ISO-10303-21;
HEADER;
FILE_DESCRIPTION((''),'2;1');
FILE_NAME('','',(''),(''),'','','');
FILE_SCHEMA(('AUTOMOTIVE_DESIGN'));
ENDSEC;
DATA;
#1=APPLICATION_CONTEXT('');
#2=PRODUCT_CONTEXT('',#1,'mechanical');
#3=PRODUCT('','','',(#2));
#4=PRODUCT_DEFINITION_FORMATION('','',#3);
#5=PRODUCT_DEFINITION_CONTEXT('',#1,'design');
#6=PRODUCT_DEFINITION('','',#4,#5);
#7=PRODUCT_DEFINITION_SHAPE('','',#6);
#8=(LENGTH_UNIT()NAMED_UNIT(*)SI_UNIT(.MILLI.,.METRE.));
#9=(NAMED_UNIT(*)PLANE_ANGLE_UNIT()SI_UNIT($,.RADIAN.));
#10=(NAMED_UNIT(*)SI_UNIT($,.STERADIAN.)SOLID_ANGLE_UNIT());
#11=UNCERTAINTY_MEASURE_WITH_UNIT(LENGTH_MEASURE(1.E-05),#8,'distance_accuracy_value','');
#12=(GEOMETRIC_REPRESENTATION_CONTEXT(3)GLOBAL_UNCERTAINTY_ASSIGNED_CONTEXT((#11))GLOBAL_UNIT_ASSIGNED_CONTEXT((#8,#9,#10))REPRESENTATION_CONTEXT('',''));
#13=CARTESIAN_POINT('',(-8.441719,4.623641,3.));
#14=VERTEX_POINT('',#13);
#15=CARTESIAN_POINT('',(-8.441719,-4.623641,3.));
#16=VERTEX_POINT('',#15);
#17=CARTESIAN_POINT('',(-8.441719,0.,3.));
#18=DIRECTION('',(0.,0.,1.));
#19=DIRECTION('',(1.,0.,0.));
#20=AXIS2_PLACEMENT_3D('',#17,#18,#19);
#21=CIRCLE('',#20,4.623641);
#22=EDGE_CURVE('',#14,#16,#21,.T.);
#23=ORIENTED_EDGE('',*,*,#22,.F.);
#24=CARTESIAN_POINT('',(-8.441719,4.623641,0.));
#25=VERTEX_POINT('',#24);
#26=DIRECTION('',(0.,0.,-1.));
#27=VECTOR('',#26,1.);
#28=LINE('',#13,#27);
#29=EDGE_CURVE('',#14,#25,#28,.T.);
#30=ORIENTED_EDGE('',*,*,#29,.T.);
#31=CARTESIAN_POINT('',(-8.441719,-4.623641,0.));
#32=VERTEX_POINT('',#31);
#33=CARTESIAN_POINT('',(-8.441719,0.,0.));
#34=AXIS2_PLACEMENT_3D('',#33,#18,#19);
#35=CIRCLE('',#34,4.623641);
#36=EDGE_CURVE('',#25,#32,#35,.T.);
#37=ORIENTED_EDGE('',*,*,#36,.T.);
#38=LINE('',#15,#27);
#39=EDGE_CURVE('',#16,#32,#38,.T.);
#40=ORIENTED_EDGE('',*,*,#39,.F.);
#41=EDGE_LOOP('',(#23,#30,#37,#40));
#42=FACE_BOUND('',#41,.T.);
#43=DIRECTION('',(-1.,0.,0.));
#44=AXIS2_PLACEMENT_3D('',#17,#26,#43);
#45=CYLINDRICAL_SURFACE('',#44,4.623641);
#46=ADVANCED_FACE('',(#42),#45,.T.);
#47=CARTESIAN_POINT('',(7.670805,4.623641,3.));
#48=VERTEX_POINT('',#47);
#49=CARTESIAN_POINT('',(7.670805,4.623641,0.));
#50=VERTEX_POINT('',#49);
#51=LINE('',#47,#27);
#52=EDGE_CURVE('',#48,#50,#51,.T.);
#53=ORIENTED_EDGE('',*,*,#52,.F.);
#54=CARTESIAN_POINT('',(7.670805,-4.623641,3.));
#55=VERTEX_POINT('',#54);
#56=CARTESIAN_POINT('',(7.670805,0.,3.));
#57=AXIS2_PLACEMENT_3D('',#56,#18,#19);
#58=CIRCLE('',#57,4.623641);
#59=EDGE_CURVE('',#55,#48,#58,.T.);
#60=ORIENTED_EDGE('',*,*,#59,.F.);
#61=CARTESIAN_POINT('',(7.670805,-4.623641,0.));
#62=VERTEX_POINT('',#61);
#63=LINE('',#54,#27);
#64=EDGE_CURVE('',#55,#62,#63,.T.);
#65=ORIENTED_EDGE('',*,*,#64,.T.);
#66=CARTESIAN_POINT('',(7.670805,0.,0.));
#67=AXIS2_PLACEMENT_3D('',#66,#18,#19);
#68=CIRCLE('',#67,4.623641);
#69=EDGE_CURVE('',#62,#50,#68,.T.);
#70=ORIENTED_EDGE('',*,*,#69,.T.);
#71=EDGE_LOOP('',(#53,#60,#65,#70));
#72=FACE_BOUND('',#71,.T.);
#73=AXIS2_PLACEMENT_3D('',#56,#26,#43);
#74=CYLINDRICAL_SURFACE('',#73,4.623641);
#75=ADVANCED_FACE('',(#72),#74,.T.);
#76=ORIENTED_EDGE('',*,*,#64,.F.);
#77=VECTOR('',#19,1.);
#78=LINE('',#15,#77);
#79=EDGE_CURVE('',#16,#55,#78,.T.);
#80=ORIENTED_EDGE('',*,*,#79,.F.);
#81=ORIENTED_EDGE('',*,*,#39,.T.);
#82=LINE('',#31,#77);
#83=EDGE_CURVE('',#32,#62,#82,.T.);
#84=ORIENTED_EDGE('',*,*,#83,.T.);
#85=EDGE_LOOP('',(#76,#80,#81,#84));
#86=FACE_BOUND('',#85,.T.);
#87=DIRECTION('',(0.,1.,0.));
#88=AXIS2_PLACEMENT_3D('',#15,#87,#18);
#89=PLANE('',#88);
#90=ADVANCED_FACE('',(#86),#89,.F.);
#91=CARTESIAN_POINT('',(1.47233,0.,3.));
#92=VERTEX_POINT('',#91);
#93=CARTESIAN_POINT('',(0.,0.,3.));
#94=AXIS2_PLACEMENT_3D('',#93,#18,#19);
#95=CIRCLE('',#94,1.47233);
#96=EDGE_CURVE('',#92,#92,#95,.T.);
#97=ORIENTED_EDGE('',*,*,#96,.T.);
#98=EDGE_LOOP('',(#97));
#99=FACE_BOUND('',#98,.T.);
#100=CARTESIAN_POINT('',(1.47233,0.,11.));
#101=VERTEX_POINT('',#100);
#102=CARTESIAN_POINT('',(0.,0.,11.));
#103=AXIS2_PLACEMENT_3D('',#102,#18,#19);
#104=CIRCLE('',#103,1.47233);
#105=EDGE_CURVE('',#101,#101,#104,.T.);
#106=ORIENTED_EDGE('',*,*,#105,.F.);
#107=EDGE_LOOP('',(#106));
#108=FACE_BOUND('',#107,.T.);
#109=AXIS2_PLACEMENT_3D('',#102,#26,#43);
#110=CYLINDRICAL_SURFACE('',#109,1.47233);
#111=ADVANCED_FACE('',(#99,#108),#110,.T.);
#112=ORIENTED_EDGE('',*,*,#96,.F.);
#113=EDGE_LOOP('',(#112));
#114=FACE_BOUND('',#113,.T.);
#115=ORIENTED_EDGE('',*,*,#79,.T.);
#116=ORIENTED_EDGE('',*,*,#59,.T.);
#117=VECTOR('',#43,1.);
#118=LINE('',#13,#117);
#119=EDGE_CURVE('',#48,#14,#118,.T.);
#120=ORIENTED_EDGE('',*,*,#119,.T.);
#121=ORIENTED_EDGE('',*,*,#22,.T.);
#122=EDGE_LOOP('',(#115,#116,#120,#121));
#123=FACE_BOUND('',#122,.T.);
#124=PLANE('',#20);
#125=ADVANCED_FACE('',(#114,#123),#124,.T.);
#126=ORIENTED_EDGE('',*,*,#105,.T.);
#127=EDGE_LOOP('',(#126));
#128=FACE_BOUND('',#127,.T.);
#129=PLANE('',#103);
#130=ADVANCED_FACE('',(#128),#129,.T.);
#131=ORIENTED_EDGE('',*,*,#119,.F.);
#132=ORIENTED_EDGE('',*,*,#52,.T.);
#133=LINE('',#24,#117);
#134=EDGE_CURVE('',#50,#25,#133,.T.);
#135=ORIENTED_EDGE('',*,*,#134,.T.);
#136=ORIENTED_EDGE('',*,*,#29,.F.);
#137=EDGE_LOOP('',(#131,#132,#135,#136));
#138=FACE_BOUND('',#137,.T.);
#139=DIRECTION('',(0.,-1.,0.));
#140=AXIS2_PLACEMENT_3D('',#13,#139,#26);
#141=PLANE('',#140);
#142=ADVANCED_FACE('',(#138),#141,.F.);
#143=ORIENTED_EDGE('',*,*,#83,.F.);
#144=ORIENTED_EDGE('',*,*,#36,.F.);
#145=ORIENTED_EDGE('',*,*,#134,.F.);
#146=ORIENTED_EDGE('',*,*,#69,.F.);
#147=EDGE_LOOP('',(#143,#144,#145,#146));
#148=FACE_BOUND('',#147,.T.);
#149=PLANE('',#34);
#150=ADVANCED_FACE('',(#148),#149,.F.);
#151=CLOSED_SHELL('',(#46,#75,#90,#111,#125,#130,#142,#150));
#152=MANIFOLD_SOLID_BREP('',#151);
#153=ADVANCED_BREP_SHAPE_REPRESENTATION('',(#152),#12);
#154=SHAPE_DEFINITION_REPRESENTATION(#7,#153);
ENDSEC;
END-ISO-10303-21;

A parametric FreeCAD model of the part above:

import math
import FreeCAD as App
import Part
import Sketcher

V = App.Vector
Q = App.Units.Quantity

doc = App.newDocument("Part")
params = doc.addObject("Spreadsheet::Sheet", "Params")
for row, (alias, value) in enumerate([
    ("pad1_length", "3 mm"),
    ("pad2_length", "8 mm"),
], start=1):
    params.set(f"A{row}", alias)
    params.set(f"B{row}", "=" + value)
    params.setAlias(f"B{row}", alias)

body = doc.addObject("PartDesign::Body", "Body")

# Sketch on XY plane
sketch1 = body.newObject("Sketcher::SketchObject", "Sketch")
sketch1.AttachmentSupport = (doc.getObject("XY_Plane"), [""])
sketch1.MapMode = "FlatFace"
sketch1.addGeometry(Part.LineSegment(V(7.7, 4.6, 0), V(-8.4, 4.6, 0)), False)
sketch1.addGeometry(Part.ArcOfCircle(Part.Circle(V(-8.4, 0, 0), V(0, 0, 1), 4.6), math.radians(90), math.radians(270)), False)
sketch1.addGeometry(Part.LineSegment(V(-8.4, -4.6, 0), V(7.7, -4.6, 0)), False)
sketch1.addGeometry(Part.ArcOfCircle(Part.Circle(V(7.7, 0, 0), V(0, 0, 1), 4.6), math.radians(-90), math.radians(90)), False)
sketch1.addConstraint(Sketcher.Constraint("Tangent", 0, 2, 1, 1))
sketch1.addConstraint(Sketcher.Constraint("Tangent", 1, 2, 2, 1))
sketch1.addConstraint(Sketcher.Constraint("Tangent", 2, 2, 3, 1))
sketch1.addConstraint(Sketcher.Constraint("Tangent", 3, 2, 0, 1))
sketch1.addConstraint(Sketcher.Constraint("Horizontal", 0))
sketch1.addConstraint(Sketcher.Constraint("Horizontal", 2))
sketch1.addConstraint(Sketcher.Constraint("PointOnObject", 1, 3, -1))
sketch1.addConstraint(Sketcher.Constraint("Radius", 1, Q("4.623641 mm")))
sketch1.addConstraint(Sketcher.Constraint("DistanceX", 0, 2, 0, 1, Q("16.112523 mm")))
sketch1.addConstraint(Sketcher.Constraint("DistanceX", 1, 3, -1, 1, Q("8.441719 mm")))
pad1 = body.newObject("PartDesign::Pad", "Pad")
pad1.Profile = sketch1
pad1.setExpression("Length", "Params.pad1_length")

# Sketch on XY plane
sketch2 = body.newObject("Sketcher::SketchObject", "Sketch001")
sketch2.AttachmentSupport = (doc.getObject("XY_Plane"), [""])
sketch2.MapMode = "FlatFace"
sketch2.AttachmentOffset = App.Placement(V(0, 0, 3), App.Rotation())
sketch2.addGeometry(Part.Circle(V(0, 0, 0), V(0, 0, 1), 1.5), False)
sketch2.addConstraint(Sketcher.Constraint("Coincident", 0, 3, -1, 1))
sketch2.addConstraint(Sketcher.Constraint("Diameter", 0, Q("2.94466 mm")))
pad2 = body.newObject("PartDesign::Pad", "Pad001")
pad2.Profile = sketch2
pad2.setExpression("Length", "Params.pad2_length")

doc.recompute()
